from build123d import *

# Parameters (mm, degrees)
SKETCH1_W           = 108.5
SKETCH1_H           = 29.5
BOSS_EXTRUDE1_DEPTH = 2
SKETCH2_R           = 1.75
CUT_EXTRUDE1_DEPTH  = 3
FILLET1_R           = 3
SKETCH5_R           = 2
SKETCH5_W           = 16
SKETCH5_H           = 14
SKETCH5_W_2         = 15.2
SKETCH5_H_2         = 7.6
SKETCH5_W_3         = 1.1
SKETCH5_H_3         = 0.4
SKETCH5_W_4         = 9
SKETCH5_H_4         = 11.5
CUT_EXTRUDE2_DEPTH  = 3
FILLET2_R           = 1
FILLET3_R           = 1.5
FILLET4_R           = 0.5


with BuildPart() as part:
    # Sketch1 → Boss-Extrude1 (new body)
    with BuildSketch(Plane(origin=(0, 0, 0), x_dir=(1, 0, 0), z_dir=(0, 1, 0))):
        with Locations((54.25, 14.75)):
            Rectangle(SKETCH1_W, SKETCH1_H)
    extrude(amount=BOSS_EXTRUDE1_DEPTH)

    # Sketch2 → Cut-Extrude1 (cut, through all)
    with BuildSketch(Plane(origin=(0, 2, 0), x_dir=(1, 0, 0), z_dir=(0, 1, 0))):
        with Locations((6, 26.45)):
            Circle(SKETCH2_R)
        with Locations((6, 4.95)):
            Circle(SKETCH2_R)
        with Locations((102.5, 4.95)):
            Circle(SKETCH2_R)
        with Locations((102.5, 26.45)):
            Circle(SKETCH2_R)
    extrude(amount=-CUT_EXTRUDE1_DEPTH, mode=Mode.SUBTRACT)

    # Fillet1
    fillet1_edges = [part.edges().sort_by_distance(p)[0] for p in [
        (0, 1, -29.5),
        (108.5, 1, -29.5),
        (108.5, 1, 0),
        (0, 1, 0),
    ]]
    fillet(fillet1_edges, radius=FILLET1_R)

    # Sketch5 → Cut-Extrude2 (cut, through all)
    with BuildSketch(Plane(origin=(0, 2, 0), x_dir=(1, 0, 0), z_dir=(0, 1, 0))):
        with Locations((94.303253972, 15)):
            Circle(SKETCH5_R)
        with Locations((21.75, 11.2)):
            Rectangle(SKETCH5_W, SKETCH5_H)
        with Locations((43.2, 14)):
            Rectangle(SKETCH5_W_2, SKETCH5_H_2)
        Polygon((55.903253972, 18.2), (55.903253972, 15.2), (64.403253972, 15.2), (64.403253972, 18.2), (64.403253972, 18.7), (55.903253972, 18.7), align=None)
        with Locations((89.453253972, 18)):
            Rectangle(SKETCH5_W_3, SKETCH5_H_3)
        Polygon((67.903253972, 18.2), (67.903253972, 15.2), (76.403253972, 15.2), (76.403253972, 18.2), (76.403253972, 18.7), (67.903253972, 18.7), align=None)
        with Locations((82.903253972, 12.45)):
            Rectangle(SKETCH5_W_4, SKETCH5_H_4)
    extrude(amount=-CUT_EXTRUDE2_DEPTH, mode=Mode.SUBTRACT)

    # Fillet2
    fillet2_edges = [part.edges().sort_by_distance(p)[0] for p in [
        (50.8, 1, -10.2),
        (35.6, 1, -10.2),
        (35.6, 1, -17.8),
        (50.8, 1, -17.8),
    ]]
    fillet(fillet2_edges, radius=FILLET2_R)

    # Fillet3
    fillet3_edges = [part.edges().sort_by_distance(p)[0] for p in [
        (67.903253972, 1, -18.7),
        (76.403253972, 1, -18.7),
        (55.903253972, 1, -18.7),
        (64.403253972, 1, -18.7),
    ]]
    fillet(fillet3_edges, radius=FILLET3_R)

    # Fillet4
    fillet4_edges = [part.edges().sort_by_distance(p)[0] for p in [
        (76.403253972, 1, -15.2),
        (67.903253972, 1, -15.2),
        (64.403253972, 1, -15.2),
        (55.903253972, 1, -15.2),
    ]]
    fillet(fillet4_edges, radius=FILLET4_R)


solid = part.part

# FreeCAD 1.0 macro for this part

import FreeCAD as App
import Part
import Sketcher
from FreeCAD import Vector
Q = App.Units.Quantity


def edges_at(feature, points):
    """Names of the edges that pass closest to the given points."""
    edges = feature.Shape.Edges
    near = lambda p: min(range(len(edges)), key=lambda i: edges[i].distToShape(Part.Vertex(*p))[0])
    return sorted({f"Edge{near(p) + 1}" for p in points})

doc = App.newDocument("Part")
params = doc.addObject("Spreadsheet::Sheet", "Params")
for row, (alias, value) in enumerate([
    ("sketch1_width", "108.5 mm"),
    ("sketch1_height", "29.5 mm"),
    ("pad1_length", "2 mm"),
    ("sketch2_diameter", "3.5 mm"),
    ("fillet_radius", "3 mm"),
    ("sketch3_diameter", "4 mm"),
    ("sketch3_width", "16 mm"),
    ("sketch3_width2", "9 mm"),
    ("sketch3_height", "14 mm"),
    ("sketch3_width3", "15.2 mm"),
    ("fillet2_radius", "1 mm"),
    ("fillet3_radius", "1.5 mm"),
    ("fillet4_radius", "0.5 mm"),
], start=1):
    params.set(f"A{row}", alias)
    params.set(f"B{row}", "=" + value)
    params.setAlias(f"B{row}", alias)

body = doc.addObject("PartDesign::Body", "Body")

# Sketch on XZ plane
sketch1 = body.newObject("Sketcher::SketchObject", "Sketch")
sketch1.AttachmentSupport = (doc.getObject("XZ_Plane"), [""])
sketch1.MapMode = "FlatFace"
sketch1.addGeometry([
    Part.LineSegment(Vector(0, -30, 0), Vector(0, 0, 0)),
    Part.LineSegment(Vector(0, 0, 0), Vector(108, 0, 0)),
    Part.LineSegment(Vector(108, 0, 0), Vector(108, -30, 0)),
    Part.LineSegment(Vector(108, -30, 0), Vector(0, -30, 0)),
], False)
sketch1.addConstraint([
    Sketcher.Constraint("Coincident", 0, 2, 1, 1),
    Sketcher.Constraint("Coincident", 1, 2, 2, 1),
    Sketcher.Constraint("Coincident", 2, 2, 3, 1),
    Sketcher.Constraint("Coincident", 3, 2, 0, 1),
    Sketcher.Constraint("Vertical", 0),
    Sketcher.Constraint("Horizontal", 1),
    Sketcher.Constraint("Vertical", 2),
    Sketcher.Constraint("Horizontal", 3),
    Sketcher.Constraint("Coincident", 0, 2, -1, 1),
    Sketcher.Constraint("DistanceX", 1, 1, 1, 2, Q("108.5 mm")),
    Sketcher.Constraint("DistanceY", 0, 1, 0, 2, Q("29.5 mm")),
])
sketch1.setExpression("Constraints[9]", "Params.sketch1_width")
sketch1.setExpression("Constraints[10]", "Params.sketch1_height")
pad1 = body.newObject("PartDesign::Pad", "Pad")
pad1.Profile = sketch1
pad1.setExpression("Length", "Params.pad1_length")
pad1.Reversed = True

# Sketch on XZ plane
sketch2 = body.newObject("Sketcher::SketchObject", "Sketch001")
sketch2.AttachmentSupport = (doc.getObject("XZ_Plane"), [""])
sketch2.MapMode = "FlatFace"
sketch2.AttachmentOffset = App.Placement(Vector(0, 0, -2), App.Rotation())
sketch2.addGeometry([
    Part.Circle(Vector(6, -26.4, 0), Vector(0, 0, 1), 1.8),
    Part.Circle(Vector(6, -5, 0), Vector(0, 0, 1), 1.8),
    Part.Circle(Vector(102.5, -5, 0), Vector(0, 0, 1), 1.8),
    Part.Circle(Vector(102.5, -26.4, 0), Vector(0, 0, 1), 1.8),
], False)
sketch2.addConstraint([
    Sketcher.Constraint("Equal", 0, 1),
    Sketcher.Constraint("Equal", 1, 2),
    Sketcher.Constraint("Equal", 2, 3),
    Sketcher.Constraint("Horizontal", 1, 3, 2, 3),
    Sketcher.Constraint("Horizontal", 0, 3, 3, 3),
    Sketcher.Constraint("Vertical", 0, 3, 1, 3),
    Sketcher.Constraint("Vertical", 2, 3, 3, 3),
    Sketcher.Constraint("Diameter", 0, Q("3.5 mm")),
    Sketcher.Constraint("DistanceX", -1, 1, 0, 3, Q("6 mm")),
    Sketcher.Constraint("DistanceX", -1, 1, 2, 3, Q("102.5 mm")),
    Sketcher.Constraint("DistanceY", 0, 3, 1, 3, Q("21.5 mm")),
    Sketcher.Constraint("DistanceY", 0, 3, -1, 1, Q("26.45 mm")),
])
sketch2.setExpression("Constraints[7]", "Params.sketch2_diameter")
pocket1 = body.newObject("PartDesign::Pocket", "Pocket")
pocket1.Profile = sketch2
pocket1.Type = "ThroughAll"
pocket1.Reversed = True
doc.recompute()

fillet = body.newObject("PartDesign::Fillet", "Fillet")
fillet.Base = (pocket1, edges_at(pocket1, [
    (0, 1, -29.5),
    (108.5, 1, -29.5),
    (108.5, 1, 0),
    (0, 1, 0),
]))
fillet.setExpression("Radius", "Params.fillet_radius")

# Sketch on XZ plane
sketch3 = body.newObject("Sketcher::SketchObject", "Sketch002")
sketch3.AttachmentSupport = (doc.getObject("XZ_Plane"), [""])
sketch3.MapMode = "FlatFace"
sketch3.AttachmentOffset = App.Placement(Vector(0, 0, -2), App.Rotation())
sketch3.addGeometry([
    Part.Circle(Vector(94.3, -15, 0), Vector(0, 0, 1), 2),  # 0
    Part.LineSegment(Vector(13.75, -18.2, 0), Vector(13.75, -4.2, 0)),  # 1
    Part.LineSegment(Vector(13.75, -4.2, 0), Vector(29.75, -4.2, 0)),  # 2
    Part.LineSegment(Vector(29.75, -4.2, 0), Vector(29.75, -18.2, 0)),  # 3
    Part.LineSegment(Vector(29.75, -18.2, 0), Vector(13.75, -18.2, 0)),  # 4
    Part.LineSegment(Vector(35.6, -17.8, 0), Vector(35.6, -10.2, 0)),  # 5
    Part.LineSegment(Vector(35.6, -10.2, 0), Vector(50.8, -10.2, 0)),  # 6
    Part.LineSegment(Vector(50.8, -10.2, 0), Vector(50.8, -17.8, 0)),  # 7
    Part.LineSegment(Vector(50.8, -17.8, 0), Vector(35.6, -17.8, 0)),  # 8
    Part.LineSegment(Vector(55.9, -15.2, 0), Vector(64.4, -15.2, 0)),  # 9
    Part.LineSegment(Vector(64.4, -15.2, 0), Vector(64.4, -18.7, 0)),  # 10
    Part.LineSegment(Vector(64.4, -18.7, 0), Vector(55.9, -18.7, 0)),  # 11
    Part.LineSegment(Vector(55.9, -18.7, 0), Vector(55.9, -15.2, 0)),  # 12
    Part.LineSegment(Vector(88.9, -18.2, 0), Vector(88.9, -17.8, 0)),  # 13
    Part.LineSegment(Vector(88.9, -17.8, 0), Vector(90, -17.8, 0)),  # 14
    Part.LineSegment(Vector(90, -17.8, 0), Vector(90, -18.2, 0)),  # 15
    Part.LineSegment(Vector(90, -18.2, 0), Vector(88.9, -18.2, 0)),  # 16
    Part.LineSegment(Vector(67.9, -15.2, 0), Vector(76.4, -15.2, 0)),  # 17
    Part.LineSegment(Vector(76.4, -15.2, 0), Vector(76.4, -18.7, 0)),  # 18
    Part.LineSegment(Vector(76.4, -18.7, 0), Vector(67.9, -18.7, 0)),  # 19
    Part.LineSegment(Vector(67.9, -18.7, 0), Vector(67.9, -15.2, 0)),  # 20
    Part.LineSegment(Vector(78.4, -18.2, 0), Vector(78.4, -6.7, 0)),  # 21
    Part.LineSegment(Vector(78.4, -6.7, 0), Vector(87.4, -6.7, 0)),  # 22
    Part.LineSegment(Vector(87.4, -6.7, 0), Vector(87.4, -18.2, 0)),  # 23
    Part.LineSegment(Vector(87.4, -18.2, 0), Vector(78.4, -18.2, 0)),  # 24
], False)
sketch3.addConstraint([
    Sketcher.Constraint("Coincident", 1, 2, 2, 1),
    Sketcher.Constraint("Coincident", 2, 2, 3, 1),
    Sketcher.Constraint("Coincident", 3, 2, 4, 1),
    Sketcher.Constraint("Coincident", 4, 2, 1, 1),
    Sketcher.Constraint("Coincident", 5, 2, 6, 1),
    Sketcher.Constraint("Coincident", 6, 2, 7, 1),
    Sketcher.Constraint("Coincident", 7, 2, 8, 1),
    Sketcher.Constraint("Coincident", 8, 2, 5, 1),
    Sketcher.Constraint("Coincident", 9, 2, 10, 1),
    Sketcher.Constraint("Coincident", 10, 2, 11, 1),
    Sketcher.Constraint("Coincident", 11, 2, 12, 1),
    Sketcher.Constraint("Coincident", 12, 2, 9, 1),
    Sketcher.Constraint("Coincident", 13, 2, 14, 1),
    Sketcher.Constraint("Coincident", 14, 2, 15, 1),
    Sketcher.Constraint("Coincident", 15, 2, 16, 1),
    Sketcher.Constraint("Coincident", 16, 2, 13, 1),
    Sketcher.Constraint("Coincident", 17, 2, 18, 1),
    Sketcher.Constraint("Coincident", 18, 2, 19, 1),
    Sketcher.Constraint("Coincident", 19, 2, 20, 1),
    Sketcher.Constraint("Coincident", 20, 2, 17, 1),
    Sketcher.Constraint("Coincident", 21, 2, 22, 1),
    Sketcher.Constraint("Coincident", 22, 2, 23, 1),
    Sketcher.Constraint("Coincident", 23, 2, 24, 1),
    Sketcher.Constraint("Coincident", 24, 2, 21, 1),
    Sketcher.Constraint("Vertical", 1),
    Sketcher.Constraint("Horizontal", 2),
    Sketcher.Constraint("Vertical", 3),
    Sketcher.Constraint("Horizontal", 4),
    Sketcher.Constraint("Vertical", 5),
    Sketcher.Constraint("Horizontal", 6),
    Sketcher.Constraint("Vertical", 7),
    Sketcher.Constraint("Horizontal", 8),
    Sketcher.Constraint("Horizontal", 9),
    Sketcher.Constraint("Vertical", 10),
    Sketcher.Constraint("Horizontal", 11),
    Sketcher.Constraint("Vertical", 12),
    Sketcher.Constraint("Vertical", 13),
    Sketcher.Constraint("Horizontal", 14),
    Sketcher.Constraint("Vertical", 15),
    Sketcher.Constraint("Horizontal", 16),
    Sketcher.Constraint("Horizontal", 17),
    Sketcher.Constraint("Vertical", 18),
    Sketcher.Constraint("Horizontal", 19),
    Sketcher.Constraint("Vertical", 20),
    Sketcher.Constraint("Vertical", 21),
    Sketcher.Constraint("Horizontal", 22),
    Sketcher.Constraint("Vertical", 23),
    Sketcher.Constraint("Horizontal", 24),
    Sketcher.Constraint("Horizontal", 8, 2, 13, 2),
    Sketcher.Constraint("Horizontal", 4, 2, 15, 2),
    Sketcher.Constraint("Horizontal", 12, 2, 17, 2),
    Sketcher.Constraint("Horizontal", 11, 2, 18, 2),
    Sketcher.Constraint("Horizontal", 16, 2, 23, 2),
    Sketcher.Constraint("Equal", 11, 17),
    Sketcher.Constraint("Diameter", 0, Q("4 mm")),
    Sketcher.Constraint("DistanceX", 2, 1, 2, 2, Q("16 mm")),
    Sketcher.Constraint("DistanceX", 22, 1, 22, 2, Q("9 mm")),
    Sketcher.Constraint("DistanceY", 1, 1, 1, 2, Q("14 mm")),
    Sketcher.Constraint("DistanceX", 6, 1, 6, 2, Q("15.2 mm")),
    Sketcher.Constraint("DistanceX", 9, 1, 9, 2, Q("8.5 mm")),
    Sketcher.Constraint("DistanceX", 14, 1, 14, 2, Q("1.1 mm")),
    Sketcher.Constraint("DistanceY", 5, 1, 5, 2, Q("7.6 mm")),
    Sketcher.Constraint("DistanceY", 10, 2, 10, 1, Q("3.5 mm")),
    Sketcher.Constraint("DistanceY", 13, 1, 13, 2, Q("0.4 mm")),
    Sketcher.Constraint("DistanceY", 21, 1, 21, 2, Q("11.5 mm")),
    Sketcher.Constraint("DistanceY", 0, 3, -1, 1, Q("15 mm")),
    Sketcher.Constraint("DistanceY", 9, 2, 6, 2, Q("5 mm")),
    Sketcher.Constraint("DistanceX", 11, 2, 13, 2, Q("33 mm")),
    Sketcher.Constraint("DistanceX", 9, 2, 17, 2, Q("12 mm")),
    Sketcher.Constraint("DistanceX", 17, 2, 21, 2, Q("2 mm")),
    Sketcher.Constraint("DistanceY", 1, 2, -1, 1, Q("4.2 mm")),
    Sketcher.Constraint("DistanceX", -1, 1, 5, 2, Q("35.6 mm")),
    Sketcher.Constraint("DistanceX", 9, 2, 0, 3, Q("29.9 mm")),
    Sketcher.Constraint("DistanceX", -1, 1, 1, 2, Q("13.75 mm")),
    Sketcher.Constraint("DistanceX", -1, 1, 0, 3, Q("94.303254 mm")),
])
sketch3.setExpression("Constraints[54]", "Params.sketch3_diameter")
sketch3.setExpression("Constraints[55]", "Params.sketch3_width")
sketch3.setExpression("Constraints[56]", "Params.sketch3_width2")
sketch3.setExpression("Constraints[57]", "Params.sketch3_height")
sketch3.setExpression("Constraints[58]", "Params.sketch3_width3")
pocket2 = body.newObject("PartDesign::Pocket", "Pocket001")
pocket2.Profile = sketch3
pocket2.Type = "ThroughAll"
pocket2.Reversed = True
doc.recompute()

fillet2 = body.newObject("PartDesign::Fillet", "Fillet001")
fillet2.Base = (pocket2, edges_at(pocket2, [
    (50.8, 1, -10.2),
    (35.6, 1, -10.2),
    (35.6, 1, -17.8),
    (50.8, 1, -17.8),
]))
fillet2.setExpression("Radius", "Params.fillet2_radius")
doc.recompute()

fillet3 = body.newObject("PartDesign::Fillet", "Fillet002")
fillet3.Base = (fillet2, edges_at(fillet2, [
    (67.903, 1, -18.7),
    (76.403, 1, -18.7),
    (55.903, 1, -18.7),
    (64.403, 1, -18.7),
]))
fillet3.setExpression("Radius", "Params.fillet3_radius")
doc.recompute()

fillet4 = body.newObject("PartDesign::Fillet", "Fillet003")
fillet4.Base = (fillet3, edges_at(fillet3, [
    (76.403, 1, -15.2),
    (67.903, 1, -15.2),
    (64.403, 1, -15.2),
    (55.903, 1, -15.2),
]))
fillet4.setExpression("Radius", "Params.fillet4_radius")

doc.recompute()
